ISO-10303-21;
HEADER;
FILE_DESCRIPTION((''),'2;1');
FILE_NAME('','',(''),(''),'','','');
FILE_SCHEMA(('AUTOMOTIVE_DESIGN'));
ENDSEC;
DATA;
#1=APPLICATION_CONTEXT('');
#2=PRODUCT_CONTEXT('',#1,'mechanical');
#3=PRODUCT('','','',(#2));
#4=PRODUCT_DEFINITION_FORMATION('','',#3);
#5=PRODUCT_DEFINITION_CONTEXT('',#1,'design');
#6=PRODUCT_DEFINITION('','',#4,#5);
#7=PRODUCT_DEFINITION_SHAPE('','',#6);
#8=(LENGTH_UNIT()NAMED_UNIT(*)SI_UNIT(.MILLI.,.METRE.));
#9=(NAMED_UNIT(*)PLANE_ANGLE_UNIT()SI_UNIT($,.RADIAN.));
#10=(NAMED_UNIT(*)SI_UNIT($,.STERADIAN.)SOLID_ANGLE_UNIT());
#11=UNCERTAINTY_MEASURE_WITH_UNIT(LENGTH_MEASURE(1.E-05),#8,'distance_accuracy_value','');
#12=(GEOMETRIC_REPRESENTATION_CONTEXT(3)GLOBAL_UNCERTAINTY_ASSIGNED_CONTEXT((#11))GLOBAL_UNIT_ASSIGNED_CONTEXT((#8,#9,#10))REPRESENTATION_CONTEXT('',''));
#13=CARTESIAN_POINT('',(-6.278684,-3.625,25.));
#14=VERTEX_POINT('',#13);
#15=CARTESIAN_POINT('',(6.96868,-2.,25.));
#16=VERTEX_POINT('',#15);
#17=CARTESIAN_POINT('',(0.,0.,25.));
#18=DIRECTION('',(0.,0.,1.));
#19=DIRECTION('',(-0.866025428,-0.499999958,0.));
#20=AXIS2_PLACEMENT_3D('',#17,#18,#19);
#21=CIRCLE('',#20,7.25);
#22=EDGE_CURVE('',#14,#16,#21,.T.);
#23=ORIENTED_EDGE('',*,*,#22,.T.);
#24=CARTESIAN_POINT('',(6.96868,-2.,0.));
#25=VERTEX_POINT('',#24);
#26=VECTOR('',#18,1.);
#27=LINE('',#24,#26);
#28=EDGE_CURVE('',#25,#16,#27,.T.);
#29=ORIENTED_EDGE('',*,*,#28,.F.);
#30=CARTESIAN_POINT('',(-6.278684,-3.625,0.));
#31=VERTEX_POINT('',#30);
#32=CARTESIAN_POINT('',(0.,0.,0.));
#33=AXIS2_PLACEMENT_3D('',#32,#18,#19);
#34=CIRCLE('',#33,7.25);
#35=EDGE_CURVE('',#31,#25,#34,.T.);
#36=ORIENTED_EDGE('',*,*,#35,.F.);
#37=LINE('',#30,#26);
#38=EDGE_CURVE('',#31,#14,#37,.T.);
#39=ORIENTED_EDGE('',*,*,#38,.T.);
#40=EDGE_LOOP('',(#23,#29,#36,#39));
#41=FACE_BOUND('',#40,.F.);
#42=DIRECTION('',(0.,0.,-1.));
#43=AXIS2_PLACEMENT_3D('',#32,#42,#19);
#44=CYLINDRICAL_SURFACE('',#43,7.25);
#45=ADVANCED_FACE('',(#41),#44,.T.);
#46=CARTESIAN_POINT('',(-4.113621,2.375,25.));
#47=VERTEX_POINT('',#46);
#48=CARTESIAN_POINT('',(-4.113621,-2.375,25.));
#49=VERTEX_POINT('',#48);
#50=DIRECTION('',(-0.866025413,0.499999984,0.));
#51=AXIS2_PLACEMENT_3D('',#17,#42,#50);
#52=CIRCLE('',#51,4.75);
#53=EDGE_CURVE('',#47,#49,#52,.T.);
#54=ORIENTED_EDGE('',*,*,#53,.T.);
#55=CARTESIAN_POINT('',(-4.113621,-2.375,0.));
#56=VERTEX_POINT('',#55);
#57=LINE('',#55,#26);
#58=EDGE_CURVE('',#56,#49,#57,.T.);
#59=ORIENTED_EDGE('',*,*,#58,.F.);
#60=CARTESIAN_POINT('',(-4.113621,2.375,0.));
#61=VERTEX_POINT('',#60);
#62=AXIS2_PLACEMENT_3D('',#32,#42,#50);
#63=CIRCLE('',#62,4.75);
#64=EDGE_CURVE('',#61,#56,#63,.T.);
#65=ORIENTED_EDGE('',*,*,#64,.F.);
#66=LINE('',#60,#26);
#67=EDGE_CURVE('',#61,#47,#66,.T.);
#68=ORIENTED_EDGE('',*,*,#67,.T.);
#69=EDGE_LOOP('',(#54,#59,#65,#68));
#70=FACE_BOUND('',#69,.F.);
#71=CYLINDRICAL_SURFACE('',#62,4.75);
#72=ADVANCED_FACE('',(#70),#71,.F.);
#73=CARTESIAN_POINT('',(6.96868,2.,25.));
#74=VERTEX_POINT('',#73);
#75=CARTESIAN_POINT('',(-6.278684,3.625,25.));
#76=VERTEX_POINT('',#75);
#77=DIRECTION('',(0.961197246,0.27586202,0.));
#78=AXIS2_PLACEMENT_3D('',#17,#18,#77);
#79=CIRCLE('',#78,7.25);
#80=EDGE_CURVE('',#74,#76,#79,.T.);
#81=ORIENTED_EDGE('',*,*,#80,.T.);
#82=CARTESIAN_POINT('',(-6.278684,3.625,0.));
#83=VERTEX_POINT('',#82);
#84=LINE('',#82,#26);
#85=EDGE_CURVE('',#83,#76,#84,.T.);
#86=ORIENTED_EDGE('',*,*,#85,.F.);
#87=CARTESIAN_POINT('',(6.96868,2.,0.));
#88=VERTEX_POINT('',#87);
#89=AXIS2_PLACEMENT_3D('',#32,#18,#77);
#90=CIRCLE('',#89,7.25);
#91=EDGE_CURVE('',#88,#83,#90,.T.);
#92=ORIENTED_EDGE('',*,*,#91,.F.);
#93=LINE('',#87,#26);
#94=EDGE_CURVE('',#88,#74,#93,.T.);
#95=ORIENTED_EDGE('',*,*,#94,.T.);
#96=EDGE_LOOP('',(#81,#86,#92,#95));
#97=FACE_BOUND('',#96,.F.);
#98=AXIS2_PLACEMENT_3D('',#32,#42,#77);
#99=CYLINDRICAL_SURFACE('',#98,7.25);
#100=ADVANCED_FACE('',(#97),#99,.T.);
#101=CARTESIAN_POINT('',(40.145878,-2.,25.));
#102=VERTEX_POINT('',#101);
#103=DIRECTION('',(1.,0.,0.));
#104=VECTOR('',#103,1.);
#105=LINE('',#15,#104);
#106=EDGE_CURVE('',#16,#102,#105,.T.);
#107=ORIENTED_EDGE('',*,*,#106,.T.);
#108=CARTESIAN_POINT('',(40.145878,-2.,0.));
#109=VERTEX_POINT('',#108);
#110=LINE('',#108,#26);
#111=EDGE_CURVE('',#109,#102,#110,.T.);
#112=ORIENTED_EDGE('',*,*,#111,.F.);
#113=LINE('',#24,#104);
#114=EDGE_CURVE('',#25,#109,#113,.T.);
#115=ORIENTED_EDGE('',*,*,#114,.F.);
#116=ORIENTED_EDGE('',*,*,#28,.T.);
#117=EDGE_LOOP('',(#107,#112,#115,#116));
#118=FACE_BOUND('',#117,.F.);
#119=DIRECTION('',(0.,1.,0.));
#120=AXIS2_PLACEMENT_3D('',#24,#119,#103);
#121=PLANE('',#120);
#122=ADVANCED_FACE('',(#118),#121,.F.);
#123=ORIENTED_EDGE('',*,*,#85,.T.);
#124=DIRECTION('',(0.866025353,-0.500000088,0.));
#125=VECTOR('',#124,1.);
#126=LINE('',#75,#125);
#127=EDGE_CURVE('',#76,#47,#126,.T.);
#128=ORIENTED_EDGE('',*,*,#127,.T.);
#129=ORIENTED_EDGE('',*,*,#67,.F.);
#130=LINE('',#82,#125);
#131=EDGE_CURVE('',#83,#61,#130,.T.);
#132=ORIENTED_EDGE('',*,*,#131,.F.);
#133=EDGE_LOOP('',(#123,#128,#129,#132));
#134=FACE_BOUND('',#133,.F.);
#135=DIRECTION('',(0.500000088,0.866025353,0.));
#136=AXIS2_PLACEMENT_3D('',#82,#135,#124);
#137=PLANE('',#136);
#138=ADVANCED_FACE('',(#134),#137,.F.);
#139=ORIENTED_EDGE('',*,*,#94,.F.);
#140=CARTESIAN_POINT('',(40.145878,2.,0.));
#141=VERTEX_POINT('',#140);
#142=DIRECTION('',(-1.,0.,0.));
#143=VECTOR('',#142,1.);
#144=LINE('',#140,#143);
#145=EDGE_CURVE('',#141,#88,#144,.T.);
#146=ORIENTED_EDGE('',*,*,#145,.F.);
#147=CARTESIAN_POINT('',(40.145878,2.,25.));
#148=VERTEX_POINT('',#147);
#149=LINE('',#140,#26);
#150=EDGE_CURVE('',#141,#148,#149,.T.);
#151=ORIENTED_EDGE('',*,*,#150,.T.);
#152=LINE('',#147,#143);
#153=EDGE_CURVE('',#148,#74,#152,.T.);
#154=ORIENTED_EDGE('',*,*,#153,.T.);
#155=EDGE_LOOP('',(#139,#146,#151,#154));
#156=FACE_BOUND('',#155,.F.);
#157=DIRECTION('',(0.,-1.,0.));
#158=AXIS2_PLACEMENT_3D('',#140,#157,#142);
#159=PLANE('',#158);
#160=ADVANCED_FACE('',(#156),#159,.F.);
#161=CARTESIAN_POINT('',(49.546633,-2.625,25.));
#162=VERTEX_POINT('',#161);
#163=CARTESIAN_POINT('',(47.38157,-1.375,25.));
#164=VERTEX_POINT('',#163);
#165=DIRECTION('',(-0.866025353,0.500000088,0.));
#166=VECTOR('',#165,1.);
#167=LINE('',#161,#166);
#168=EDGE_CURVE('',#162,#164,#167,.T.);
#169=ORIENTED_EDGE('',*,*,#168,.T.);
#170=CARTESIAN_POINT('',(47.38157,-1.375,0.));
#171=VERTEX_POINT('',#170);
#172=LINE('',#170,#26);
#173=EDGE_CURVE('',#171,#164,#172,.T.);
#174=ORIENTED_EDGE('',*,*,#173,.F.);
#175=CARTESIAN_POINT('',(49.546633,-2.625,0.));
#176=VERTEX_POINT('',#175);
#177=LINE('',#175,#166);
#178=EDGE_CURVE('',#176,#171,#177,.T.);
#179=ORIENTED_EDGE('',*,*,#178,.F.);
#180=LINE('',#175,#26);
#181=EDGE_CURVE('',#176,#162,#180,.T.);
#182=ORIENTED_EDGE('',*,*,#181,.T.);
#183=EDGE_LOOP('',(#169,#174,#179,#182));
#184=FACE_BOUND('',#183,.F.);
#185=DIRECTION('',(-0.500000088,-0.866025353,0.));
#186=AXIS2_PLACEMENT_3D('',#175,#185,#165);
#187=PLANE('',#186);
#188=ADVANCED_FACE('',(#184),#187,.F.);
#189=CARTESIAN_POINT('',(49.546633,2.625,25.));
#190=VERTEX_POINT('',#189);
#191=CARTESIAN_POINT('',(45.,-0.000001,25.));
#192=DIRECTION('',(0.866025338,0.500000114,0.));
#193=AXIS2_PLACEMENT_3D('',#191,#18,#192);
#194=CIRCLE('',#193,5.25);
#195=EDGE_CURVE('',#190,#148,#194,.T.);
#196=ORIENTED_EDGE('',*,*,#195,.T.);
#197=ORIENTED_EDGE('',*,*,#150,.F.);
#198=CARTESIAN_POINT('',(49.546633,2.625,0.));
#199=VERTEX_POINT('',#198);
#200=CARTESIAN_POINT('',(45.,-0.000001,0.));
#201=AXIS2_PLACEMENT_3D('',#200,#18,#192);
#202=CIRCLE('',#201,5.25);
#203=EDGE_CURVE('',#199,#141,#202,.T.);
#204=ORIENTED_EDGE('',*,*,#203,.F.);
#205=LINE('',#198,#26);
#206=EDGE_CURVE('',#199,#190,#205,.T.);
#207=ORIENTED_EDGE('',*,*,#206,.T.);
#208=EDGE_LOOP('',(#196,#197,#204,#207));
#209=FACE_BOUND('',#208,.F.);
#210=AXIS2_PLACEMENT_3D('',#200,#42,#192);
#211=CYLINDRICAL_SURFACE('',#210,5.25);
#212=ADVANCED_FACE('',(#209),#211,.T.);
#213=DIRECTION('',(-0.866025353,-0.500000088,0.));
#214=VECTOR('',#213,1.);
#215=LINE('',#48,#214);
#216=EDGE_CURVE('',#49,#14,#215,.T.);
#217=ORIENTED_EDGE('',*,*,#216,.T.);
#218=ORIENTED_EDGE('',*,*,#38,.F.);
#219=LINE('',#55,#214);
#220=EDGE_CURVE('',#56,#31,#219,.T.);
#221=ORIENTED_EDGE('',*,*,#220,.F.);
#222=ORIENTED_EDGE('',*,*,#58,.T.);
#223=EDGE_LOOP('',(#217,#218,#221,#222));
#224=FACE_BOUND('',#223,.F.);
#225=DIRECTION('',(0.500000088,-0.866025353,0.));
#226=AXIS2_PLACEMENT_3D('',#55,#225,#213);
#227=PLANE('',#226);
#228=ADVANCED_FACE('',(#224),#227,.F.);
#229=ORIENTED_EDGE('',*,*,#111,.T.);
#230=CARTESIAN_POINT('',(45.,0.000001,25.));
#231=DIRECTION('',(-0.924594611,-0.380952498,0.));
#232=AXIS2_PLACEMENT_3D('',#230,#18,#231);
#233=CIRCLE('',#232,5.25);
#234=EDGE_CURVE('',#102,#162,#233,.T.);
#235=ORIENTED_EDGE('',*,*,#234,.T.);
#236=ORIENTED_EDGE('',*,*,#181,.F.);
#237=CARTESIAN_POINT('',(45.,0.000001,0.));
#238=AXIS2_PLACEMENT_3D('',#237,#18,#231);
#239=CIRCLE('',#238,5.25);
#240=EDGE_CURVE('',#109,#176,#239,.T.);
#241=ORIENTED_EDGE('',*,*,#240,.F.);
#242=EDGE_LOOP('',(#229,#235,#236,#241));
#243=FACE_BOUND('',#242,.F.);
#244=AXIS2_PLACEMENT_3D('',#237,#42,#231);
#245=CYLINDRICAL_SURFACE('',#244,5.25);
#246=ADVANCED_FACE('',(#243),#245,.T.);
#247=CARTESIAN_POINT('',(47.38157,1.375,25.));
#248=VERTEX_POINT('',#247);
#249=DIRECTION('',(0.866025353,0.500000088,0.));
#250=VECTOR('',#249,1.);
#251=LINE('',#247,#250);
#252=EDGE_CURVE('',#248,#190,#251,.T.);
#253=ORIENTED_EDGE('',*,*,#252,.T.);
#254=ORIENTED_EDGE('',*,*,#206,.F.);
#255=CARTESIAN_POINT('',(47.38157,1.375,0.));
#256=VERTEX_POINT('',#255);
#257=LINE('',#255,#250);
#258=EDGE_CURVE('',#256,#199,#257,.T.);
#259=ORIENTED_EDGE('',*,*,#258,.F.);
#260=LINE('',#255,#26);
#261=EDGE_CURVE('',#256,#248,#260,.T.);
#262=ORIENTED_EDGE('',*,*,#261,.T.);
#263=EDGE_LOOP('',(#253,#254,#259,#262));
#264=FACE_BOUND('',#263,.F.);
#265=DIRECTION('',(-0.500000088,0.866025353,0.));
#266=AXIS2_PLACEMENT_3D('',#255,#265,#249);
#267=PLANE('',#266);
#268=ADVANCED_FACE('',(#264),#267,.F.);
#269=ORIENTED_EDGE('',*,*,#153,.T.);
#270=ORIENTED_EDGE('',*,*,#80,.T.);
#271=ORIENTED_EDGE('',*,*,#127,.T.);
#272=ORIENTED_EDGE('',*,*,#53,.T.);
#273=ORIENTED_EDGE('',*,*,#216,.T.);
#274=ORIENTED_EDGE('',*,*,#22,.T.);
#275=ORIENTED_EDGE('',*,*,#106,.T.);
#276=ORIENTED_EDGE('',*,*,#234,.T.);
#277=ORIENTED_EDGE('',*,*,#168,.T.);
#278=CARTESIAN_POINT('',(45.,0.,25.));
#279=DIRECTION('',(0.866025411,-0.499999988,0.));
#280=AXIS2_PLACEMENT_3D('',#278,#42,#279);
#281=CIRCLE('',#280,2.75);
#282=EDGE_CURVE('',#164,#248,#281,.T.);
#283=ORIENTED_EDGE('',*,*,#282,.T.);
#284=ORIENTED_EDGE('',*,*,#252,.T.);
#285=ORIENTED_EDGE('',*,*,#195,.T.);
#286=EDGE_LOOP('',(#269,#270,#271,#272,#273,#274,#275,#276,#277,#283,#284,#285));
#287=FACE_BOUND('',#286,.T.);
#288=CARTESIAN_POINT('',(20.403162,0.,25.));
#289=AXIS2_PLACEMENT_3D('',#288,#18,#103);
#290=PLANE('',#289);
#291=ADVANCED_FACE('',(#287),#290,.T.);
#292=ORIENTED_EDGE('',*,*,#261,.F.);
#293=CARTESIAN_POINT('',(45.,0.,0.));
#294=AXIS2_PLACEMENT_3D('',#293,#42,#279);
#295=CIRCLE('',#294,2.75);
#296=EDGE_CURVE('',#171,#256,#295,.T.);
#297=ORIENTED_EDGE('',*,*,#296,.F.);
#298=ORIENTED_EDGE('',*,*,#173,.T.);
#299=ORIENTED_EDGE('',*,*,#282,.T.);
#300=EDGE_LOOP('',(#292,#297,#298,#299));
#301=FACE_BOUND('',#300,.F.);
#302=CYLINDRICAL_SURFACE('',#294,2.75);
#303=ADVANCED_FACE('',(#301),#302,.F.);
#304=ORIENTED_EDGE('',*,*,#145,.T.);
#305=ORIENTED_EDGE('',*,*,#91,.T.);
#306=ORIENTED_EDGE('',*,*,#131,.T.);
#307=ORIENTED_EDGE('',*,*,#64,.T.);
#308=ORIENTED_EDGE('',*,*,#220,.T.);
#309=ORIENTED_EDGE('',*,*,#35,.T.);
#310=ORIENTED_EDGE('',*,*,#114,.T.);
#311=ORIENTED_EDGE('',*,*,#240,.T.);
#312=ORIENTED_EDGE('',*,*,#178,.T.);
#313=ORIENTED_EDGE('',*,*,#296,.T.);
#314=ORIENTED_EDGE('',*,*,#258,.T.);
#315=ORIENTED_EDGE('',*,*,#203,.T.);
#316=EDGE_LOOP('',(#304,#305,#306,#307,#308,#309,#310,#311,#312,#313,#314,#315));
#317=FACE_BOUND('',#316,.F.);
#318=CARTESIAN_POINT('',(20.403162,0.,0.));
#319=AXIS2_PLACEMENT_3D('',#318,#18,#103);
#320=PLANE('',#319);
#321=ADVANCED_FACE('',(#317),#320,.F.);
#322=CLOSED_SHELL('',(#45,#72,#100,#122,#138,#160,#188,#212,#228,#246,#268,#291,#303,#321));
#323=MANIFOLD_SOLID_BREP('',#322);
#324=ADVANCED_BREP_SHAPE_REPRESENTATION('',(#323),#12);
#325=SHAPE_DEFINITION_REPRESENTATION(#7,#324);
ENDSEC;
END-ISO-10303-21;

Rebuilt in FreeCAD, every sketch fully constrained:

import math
import FreeCAD as App
import Part
import Sketcher
from FreeCAD import Vector
Q = App.Units.Quantity

doc = App.newDocument("Part")
body = doc.addObject("PartDesign::Body", "Body")

sketch1 = body.newObject("Sketcher::SketchObject", "Sketch")
sketch1.AttachmentSupport = (doc.getObject("XY_Plane"), [""])
sketch1.MapMode = "FlatFace"
sketch1.addGeometry(Part.ArcOfCircle(Part.Circle(Vector(0, 0, 0), Vector(0, 0, 1), 4.8), math.radians(-150), math.radians(150)), False)
sketch1.addGeometry(Part.LineSegment(Vector(-4.1, -2.4, 0), Vector(-6.3, -3.6, 0)), False)
sketch1.addGeometry(Part.ArcOfCircle(Part.Circle(Vector(0, 0, 0), Vector(0, 0, 1), 7.2), math.radians(-150), math.radians(-16)), False)
sketch1.addGeometry(Part.LineSegment(Vector(7, -2, 0), Vector(40.1, -2, 0)), False)
sketch1.addGeometry(Part.ArcOfCircle(Part.Circle(Vector(45, 0, 0), Vector(0, 0, 1), 5.3), math.radians(-158), math.radians(-30)), False)
sketch1.addGeometry(Part.LineSegment(Vector(49.5, -2.6, 0), Vector(47.4, -1.4, 0)), False)
sketch1.addGeometry(Part.ArcOfCircle(Part.Circle(Vector(45, 0, 0), Vector(0, 0, 1), 2.8), math.radians(30), math.radians(330)), False)
sketch1.addGeometry(Part.LineSegment(Vector(47.4, 1.4, 0), Vector(49.5, 2.6, 0)), False)
sketch1.addGeometry(Part.ArcOfCircle(Part.Circle(Vector(45, 0, 0), Vector(0, 0, 1), 5.3), math.radians(30), math.radians(158)), False)
sketch1.addGeometry(Part.LineSegment(Vector(40.1, 2, 0), Vector(7, 2, 0)), False)
sketch1.addGeometry(Part.ArcOfCircle(Part.Circle(Vector(0, 0, 0), Vector(0, 0, 1), 7.2), math.radians(16), math.radians(150)), False)
sketch1.addGeometry(Part.LineSegment(Vector(-6.3, 3.6, 0), Vector(-4.1, 2.4, 0)), False)
sketch1.addConstraint(Sketcher.Constraint("Coincident", 0, 1, 1, 1))
sketch1.addConstraint(Sketcher.Constraint("Coincident", 1, 2, 2, 1))
sketch1.addConstraint(Sketcher.Constraint("Coincident", 2, 2, 3, 1))
sketch1.addConstraint(Sketcher.Constraint("Coincident", 3, 2, 4, 1))
sketch1.addConstraint(Sketcher.Constraint("Coincident", 4, 2, 5, 1))
sketch1.addConstraint(Sketcher.Constraint("Coincident", 5, 2, 6, 2))
sketch1.addConstraint(Sketcher.Constraint("Coincident", 6, 1, 7, 1))
sketch1.addConstraint(Sketcher.Constraint("Coincident", 7, 2, 8, 1))
sketch1.addConstraint(Sketcher.Constraint("Coincident", 8, 2, 9, 1))
sketch1.addConstraint(Sketcher.Constraint("Coincident", 9, 2, 10, 1))
sketch1.addConstraint(Sketcher.Constraint("Coincident", 10, 2, 11, 1))
sketch1.addConstraint(Sketcher.Constraint("Coincident", 11, 2, 0, 2))
sketch1.addConstraint(Sketcher.Constraint("Horizontal", 3))
sketch1.addConstraint(Sketcher.Constraint("Horizontal", 9))
sketch1.addConstraint(Sketcher.Constraint("Coincident", 0, 3, -1, 1))
sketch1.addConstraint(Sketcher.Constraint("Coincident", 2, 3, -1, 1))
sketch1.addConstraint(Sketcher.Constraint("Coincident", 10, 3, -1, 1))
sketch1.addConstraint(Sketcher.Constraint("Coincident", 6, 3, 4, 3))
sketch1.addConstraint(Sketcher.Constraint("Coincident", 8, 3, 4, 3))
sketch1.addConstraint(Sketcher.Constraint("Equal", 4, 8))
sketch1.addConstraint(Sketcher.Constraint("Equal", 2, 10))
sketch1.addConstraint(Sketcher.Constraint("Symmetric", 5, 2, 6, 1, -1))
sketch1.addConstraint(Sketcher.Constraint("Parallel", 1, 7))
sketch1.addConstraint(Sketcher.Constraint("Parallel", 5, 11))
sketch1.addConstraint(Sketcher.Constraint("Vertical", 4, 2, 7, 2))
sketch1.addConstraint(Sketcher.Constraint("Vertical", 3, 2, 8, 2))
sketch1.addConstraint(Sketcher.Constraint("Vertical", 1, 2, 10, 2))
sketch1.addConstraint(Sketcher.Constraint("Equal", 1, 5))
sketch1.addConstraint(Sketcher.Constraint("Angle", 1, Q("-149.999994 deg")))
sketch1.addConstraint(Sketcher.Constraint("Radius", 0, Q("4.75 mm")))
sketch1.addConstraint(Sketcher.Constraint("Radius", 2, Q("7.25 mm")))
sketch1.addConstraint(Sketcher.Constraint("Radius", 4, Q("5.25 mm")))
sketch1.addConstraint(Sketcher.Constraint("DistanceX", -1, 1, 4, 3, Q("45 mm")))
sketch1.addConstraint(Sketcher.Constraint("DistanceY", 2, 2, -1, 1, Q("2 mm")))
sketch1.addConstraint(Sketcher.Constraint("DistanceY", 4, 2, 6, 1, Q("4 mm")))
sketch1.addConstraint(Sketcher.Constraint("DistanceY", 0, 1, 10, 2, Q("6 mm")))
pad1 = body.newObject("PartDesign::Pad", "Pad")
pad1.Profile = sketch1
pad1.Length = 25

doc.recompute()
